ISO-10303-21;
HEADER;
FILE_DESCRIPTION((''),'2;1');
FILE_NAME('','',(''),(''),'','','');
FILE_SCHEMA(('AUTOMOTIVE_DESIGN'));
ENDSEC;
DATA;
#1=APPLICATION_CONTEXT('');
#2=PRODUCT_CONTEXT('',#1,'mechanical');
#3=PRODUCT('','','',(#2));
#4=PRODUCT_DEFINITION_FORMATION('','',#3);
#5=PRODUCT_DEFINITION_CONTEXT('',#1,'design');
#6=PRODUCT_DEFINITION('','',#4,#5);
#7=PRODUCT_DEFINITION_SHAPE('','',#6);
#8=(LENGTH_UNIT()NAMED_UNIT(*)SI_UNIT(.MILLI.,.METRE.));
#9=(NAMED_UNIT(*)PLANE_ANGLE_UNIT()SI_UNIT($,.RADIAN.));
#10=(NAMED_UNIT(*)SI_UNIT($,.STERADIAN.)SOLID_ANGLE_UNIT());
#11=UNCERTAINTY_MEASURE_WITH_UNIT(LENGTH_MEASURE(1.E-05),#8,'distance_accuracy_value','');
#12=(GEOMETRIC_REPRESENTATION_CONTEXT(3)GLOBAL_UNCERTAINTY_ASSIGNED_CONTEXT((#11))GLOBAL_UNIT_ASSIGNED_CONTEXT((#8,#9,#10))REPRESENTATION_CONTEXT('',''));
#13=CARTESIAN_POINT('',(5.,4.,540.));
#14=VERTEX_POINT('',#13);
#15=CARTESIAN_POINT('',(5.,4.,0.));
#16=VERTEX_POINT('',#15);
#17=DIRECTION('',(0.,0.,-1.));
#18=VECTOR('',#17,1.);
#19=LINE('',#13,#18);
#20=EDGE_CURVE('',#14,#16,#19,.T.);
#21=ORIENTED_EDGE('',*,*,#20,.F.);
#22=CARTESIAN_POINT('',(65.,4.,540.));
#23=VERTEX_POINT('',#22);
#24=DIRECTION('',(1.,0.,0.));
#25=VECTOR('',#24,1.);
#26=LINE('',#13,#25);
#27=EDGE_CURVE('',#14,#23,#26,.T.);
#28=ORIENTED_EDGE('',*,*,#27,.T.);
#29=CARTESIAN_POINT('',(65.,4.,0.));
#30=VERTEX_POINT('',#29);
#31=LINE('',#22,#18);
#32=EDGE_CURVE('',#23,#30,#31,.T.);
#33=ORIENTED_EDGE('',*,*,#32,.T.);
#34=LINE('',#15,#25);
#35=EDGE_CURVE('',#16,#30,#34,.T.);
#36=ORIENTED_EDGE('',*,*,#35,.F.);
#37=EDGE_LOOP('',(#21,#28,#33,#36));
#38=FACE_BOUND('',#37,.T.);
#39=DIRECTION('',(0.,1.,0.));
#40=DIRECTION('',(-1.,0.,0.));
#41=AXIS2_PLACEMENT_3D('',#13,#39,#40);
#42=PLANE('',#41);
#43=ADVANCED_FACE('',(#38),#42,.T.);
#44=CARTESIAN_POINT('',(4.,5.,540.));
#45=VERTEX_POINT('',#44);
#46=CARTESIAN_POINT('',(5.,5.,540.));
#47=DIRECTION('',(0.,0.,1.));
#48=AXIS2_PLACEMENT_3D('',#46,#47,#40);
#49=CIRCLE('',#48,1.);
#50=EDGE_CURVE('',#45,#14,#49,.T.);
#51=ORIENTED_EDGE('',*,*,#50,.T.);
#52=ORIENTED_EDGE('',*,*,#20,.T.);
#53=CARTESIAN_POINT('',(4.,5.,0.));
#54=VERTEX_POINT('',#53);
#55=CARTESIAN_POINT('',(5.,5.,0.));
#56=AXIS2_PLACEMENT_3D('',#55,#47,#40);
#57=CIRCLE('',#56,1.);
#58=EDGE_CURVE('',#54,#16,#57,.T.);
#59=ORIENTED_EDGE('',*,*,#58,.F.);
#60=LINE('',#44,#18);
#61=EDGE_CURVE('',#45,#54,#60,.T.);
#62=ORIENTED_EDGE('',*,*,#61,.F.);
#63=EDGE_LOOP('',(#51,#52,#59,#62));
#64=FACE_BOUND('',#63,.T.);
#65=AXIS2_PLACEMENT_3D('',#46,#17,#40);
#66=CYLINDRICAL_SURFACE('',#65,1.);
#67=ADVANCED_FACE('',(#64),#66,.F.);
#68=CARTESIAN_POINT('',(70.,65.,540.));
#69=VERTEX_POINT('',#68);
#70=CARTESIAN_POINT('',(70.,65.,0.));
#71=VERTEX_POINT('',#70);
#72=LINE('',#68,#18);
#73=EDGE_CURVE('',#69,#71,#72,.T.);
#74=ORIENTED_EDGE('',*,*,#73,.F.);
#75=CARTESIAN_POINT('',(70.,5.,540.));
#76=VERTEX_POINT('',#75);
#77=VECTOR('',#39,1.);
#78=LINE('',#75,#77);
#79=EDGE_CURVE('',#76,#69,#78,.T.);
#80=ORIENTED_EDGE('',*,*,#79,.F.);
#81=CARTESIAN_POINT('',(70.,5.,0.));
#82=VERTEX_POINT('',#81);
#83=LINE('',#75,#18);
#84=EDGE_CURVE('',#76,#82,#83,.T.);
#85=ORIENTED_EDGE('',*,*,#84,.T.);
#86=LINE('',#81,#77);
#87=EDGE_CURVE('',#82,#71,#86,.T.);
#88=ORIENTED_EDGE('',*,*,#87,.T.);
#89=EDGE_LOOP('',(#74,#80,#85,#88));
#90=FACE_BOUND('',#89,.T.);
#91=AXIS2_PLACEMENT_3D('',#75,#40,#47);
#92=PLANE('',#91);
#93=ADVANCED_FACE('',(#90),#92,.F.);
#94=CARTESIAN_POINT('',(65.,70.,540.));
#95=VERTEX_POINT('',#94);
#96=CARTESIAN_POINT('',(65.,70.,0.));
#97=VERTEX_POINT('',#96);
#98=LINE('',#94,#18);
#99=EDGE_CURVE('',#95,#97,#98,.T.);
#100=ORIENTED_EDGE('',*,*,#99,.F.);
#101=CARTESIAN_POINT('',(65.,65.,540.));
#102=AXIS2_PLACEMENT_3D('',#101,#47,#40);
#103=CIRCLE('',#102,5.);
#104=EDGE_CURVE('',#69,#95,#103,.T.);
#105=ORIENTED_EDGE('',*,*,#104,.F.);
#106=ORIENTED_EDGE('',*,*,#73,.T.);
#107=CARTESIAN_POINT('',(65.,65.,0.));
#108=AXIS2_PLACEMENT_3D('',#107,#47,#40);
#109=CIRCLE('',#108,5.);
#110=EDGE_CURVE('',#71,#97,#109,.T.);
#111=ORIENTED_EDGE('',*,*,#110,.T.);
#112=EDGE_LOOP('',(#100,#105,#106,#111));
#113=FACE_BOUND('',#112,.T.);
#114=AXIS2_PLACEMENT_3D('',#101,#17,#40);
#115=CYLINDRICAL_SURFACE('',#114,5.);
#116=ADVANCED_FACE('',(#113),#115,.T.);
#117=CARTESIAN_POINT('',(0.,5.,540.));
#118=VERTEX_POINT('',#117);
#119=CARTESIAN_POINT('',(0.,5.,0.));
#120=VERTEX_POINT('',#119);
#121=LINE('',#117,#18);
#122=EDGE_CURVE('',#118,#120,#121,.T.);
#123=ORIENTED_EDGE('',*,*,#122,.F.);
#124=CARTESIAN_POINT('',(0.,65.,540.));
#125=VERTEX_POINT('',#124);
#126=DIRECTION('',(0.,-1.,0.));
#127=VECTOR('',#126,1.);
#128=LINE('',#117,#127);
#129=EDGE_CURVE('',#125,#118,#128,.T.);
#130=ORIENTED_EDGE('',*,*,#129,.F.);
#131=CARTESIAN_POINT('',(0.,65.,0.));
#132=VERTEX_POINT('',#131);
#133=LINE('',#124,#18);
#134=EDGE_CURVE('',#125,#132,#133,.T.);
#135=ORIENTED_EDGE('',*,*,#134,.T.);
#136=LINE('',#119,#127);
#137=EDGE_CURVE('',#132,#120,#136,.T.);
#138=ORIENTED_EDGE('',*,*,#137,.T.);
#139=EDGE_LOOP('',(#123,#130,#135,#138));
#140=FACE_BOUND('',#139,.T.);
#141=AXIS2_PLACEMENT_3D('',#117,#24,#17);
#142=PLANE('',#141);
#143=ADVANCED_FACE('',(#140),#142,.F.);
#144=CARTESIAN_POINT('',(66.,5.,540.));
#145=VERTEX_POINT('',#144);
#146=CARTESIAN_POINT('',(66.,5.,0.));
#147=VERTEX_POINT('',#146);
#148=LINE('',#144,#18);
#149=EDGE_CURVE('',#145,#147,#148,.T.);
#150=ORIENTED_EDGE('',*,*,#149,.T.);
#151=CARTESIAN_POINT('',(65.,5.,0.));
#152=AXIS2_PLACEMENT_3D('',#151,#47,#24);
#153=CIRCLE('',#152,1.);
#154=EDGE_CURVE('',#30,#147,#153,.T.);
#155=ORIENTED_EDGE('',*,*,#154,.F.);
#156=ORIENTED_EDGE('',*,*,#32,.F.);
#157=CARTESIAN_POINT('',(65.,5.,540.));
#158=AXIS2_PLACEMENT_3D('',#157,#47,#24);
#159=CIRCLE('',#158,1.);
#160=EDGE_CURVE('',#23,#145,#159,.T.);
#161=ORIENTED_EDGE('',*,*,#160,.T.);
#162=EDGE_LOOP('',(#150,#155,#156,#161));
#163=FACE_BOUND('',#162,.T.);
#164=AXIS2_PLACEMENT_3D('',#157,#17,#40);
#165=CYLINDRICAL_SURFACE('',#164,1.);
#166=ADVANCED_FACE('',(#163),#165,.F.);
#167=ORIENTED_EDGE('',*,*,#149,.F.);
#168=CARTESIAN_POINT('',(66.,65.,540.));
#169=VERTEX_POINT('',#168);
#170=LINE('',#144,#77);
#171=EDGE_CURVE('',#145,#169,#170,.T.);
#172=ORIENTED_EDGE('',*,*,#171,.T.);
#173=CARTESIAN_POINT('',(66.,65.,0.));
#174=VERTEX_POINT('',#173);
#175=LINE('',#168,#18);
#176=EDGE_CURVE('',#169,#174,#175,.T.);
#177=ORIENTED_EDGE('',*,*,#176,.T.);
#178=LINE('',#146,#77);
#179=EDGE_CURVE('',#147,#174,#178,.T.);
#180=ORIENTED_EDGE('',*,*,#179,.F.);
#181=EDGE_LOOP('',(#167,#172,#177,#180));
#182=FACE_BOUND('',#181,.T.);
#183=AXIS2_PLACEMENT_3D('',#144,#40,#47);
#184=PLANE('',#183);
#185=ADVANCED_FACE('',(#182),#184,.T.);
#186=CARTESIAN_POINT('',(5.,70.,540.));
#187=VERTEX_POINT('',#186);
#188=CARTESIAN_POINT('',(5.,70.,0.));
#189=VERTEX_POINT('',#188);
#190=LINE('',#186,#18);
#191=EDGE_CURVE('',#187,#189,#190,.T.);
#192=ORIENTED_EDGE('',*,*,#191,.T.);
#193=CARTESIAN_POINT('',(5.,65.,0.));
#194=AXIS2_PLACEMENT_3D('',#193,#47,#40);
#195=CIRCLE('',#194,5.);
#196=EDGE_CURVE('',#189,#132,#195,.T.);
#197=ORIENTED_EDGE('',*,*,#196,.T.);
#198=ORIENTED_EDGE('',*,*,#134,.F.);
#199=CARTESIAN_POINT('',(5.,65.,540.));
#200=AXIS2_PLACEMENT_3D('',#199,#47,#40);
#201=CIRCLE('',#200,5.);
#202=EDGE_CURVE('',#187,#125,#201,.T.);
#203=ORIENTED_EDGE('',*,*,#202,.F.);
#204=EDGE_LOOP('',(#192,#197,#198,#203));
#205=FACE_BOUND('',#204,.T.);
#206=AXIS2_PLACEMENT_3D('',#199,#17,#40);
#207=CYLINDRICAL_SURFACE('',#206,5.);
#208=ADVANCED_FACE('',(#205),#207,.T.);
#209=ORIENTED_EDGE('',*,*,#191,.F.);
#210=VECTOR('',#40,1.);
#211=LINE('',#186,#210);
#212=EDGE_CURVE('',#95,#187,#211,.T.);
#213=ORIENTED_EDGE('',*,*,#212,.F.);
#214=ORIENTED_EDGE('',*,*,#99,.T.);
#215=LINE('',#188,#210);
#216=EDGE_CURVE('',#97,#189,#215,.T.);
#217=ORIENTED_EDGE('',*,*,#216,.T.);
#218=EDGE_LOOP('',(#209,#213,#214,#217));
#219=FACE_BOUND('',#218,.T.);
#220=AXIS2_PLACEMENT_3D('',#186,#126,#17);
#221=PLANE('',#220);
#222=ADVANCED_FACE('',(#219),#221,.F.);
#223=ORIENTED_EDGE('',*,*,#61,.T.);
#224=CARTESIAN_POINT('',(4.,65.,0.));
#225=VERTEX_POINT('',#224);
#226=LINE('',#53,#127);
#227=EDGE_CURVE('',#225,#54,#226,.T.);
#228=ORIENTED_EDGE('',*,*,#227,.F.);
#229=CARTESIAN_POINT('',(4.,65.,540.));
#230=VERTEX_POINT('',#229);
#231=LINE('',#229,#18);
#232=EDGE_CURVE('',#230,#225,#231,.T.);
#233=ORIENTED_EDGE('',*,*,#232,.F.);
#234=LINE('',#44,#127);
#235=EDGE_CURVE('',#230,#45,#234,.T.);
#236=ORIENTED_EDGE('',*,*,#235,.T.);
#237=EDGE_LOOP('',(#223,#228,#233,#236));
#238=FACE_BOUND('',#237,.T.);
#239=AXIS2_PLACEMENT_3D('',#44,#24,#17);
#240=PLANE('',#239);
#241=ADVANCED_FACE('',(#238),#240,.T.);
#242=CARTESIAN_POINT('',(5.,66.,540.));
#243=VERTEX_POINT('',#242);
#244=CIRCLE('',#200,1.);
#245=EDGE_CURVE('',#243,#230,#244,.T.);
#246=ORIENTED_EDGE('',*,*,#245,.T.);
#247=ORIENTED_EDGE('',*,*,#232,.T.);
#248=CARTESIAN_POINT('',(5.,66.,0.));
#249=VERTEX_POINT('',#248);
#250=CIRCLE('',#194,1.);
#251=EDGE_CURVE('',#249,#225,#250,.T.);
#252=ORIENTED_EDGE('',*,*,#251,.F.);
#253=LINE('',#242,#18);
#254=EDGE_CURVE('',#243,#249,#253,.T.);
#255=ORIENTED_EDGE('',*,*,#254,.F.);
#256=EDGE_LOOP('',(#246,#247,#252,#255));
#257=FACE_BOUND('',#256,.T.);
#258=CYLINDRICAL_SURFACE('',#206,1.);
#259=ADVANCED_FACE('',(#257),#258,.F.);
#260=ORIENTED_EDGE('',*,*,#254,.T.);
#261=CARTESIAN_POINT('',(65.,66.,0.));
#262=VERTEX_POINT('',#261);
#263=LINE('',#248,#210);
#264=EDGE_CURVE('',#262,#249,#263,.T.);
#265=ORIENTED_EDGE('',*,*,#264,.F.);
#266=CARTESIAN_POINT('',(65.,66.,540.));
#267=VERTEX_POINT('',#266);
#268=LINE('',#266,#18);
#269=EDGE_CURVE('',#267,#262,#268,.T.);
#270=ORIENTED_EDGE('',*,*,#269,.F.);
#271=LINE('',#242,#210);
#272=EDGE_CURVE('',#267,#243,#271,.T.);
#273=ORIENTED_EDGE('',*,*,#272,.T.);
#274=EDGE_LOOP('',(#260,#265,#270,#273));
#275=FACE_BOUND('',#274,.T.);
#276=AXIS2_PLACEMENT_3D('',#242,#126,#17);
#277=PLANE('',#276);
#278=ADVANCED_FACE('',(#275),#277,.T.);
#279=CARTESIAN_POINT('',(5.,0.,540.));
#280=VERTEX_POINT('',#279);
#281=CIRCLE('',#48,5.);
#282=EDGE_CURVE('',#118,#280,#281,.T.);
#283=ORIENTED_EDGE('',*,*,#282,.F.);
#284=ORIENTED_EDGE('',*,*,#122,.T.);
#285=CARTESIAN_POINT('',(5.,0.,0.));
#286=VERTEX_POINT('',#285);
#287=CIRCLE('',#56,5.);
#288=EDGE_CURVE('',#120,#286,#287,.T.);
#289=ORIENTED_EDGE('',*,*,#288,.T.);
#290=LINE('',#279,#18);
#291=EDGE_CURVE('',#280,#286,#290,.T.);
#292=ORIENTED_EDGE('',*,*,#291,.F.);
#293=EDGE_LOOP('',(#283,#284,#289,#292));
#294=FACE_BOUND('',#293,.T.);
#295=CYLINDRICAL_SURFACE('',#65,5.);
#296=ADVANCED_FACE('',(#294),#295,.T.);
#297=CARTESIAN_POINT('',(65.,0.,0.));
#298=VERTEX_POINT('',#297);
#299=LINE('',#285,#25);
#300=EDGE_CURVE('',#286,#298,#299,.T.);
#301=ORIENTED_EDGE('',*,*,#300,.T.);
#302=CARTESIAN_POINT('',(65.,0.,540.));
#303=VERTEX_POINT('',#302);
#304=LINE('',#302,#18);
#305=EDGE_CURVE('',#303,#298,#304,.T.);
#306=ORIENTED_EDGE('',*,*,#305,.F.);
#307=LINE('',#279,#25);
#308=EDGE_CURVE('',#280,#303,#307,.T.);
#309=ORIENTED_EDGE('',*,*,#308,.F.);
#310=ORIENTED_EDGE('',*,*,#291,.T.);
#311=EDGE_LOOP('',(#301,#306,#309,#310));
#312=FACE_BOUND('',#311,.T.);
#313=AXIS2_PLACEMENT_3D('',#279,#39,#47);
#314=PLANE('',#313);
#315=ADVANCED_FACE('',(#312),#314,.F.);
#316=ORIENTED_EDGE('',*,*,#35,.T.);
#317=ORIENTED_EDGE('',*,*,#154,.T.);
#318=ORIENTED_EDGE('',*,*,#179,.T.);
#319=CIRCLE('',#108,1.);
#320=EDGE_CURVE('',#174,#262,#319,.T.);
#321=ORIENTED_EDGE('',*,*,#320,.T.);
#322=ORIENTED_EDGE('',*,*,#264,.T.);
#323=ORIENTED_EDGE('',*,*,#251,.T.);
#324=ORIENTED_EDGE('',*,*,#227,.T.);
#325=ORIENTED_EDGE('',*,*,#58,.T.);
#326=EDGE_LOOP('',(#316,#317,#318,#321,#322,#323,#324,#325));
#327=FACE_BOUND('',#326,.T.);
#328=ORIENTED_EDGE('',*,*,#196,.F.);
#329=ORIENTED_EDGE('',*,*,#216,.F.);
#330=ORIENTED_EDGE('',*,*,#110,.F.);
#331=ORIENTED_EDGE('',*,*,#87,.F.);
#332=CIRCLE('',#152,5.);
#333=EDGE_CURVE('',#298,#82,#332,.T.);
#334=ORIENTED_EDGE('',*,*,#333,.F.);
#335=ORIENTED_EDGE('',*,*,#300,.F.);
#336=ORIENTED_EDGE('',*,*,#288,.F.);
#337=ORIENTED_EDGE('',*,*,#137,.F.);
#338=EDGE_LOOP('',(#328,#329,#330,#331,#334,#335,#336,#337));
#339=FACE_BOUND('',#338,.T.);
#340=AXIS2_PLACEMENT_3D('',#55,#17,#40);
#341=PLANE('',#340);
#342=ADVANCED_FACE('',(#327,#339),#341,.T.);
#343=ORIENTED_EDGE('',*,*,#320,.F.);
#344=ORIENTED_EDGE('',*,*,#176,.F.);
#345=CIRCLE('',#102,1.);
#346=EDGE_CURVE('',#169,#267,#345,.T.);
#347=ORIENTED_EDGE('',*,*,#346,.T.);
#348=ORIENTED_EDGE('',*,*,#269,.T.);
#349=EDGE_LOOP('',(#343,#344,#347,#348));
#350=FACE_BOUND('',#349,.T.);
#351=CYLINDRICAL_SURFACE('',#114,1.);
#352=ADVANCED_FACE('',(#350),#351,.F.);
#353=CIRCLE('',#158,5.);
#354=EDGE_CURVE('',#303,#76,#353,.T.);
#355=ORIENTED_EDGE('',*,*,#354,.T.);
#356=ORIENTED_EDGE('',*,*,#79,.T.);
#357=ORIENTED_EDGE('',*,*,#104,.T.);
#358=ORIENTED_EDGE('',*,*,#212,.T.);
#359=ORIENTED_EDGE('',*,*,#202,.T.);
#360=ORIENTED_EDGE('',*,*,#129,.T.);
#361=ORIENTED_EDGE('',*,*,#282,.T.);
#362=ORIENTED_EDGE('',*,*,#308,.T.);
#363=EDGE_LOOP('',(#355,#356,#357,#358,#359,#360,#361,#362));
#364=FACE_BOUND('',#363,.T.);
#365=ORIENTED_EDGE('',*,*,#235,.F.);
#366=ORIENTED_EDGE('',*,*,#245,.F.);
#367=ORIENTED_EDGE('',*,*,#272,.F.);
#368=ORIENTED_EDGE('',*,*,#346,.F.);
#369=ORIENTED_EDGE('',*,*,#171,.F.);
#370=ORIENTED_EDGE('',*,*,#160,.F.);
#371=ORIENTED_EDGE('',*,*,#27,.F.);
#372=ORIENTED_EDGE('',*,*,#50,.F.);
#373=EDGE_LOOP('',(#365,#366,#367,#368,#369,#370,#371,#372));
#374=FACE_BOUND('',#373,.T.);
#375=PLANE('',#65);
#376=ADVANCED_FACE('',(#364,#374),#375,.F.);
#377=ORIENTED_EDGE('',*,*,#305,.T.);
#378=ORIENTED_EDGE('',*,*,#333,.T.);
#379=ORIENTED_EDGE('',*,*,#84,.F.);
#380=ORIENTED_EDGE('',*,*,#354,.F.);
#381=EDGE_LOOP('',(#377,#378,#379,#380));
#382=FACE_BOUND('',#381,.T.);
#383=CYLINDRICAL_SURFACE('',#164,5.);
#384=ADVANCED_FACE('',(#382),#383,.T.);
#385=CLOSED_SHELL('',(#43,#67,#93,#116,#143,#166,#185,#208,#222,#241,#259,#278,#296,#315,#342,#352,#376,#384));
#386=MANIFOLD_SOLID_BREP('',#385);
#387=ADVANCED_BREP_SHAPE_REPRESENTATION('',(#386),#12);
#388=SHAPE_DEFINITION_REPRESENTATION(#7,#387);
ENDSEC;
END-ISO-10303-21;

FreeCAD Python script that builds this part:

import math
import FreeCAD as App
import Part
import Sketcher

V = App.Vector

doc = App.newDocument("Part")
params = doc.addObject("Spreadsheet::Sheet", "Params")
for row, (alias, value) in enumerate([
    ("sketch1_radius", "5 mm"),
    ("sketch1_radius2", "1 mm"),
    ("sketch1_width", "60 mm"),
    ("pad1_length", "540 mm"),
], start=1):
    params.set(f"A{row}", alias)
    params.set(f"B{row}", "=" + value)
    params.setAlias(f"B{row}", alias)

body = doc.addObject("PartDesign::Body", "Body")

sketch1 = body.newObject("Sketcher::SketchObject", "Sketch")
sketch1.AttachmentSupport = (doc.getObject("XY_Plane"), [""])
sketch1.MapMode = "FlatFace"
sketch1.addGeometry(Part.LineSegment(V(5, 0, 0), V(65, 0, 0)), False)
sketch1.addGeometry(Part.ArcOfCircle(Part.Circle(V(65, 5, 0), V(0, 0, 1), 5), math.radians(-90), math.radians(0)), False)
sketch1.addGeometry(Part.LineSegment(V(70, 5, 0), V(70, 65, 0)), False)
sketch1.addGeometry(Part.ArcOfCircle(Part.Circle(V(65, 65, 0), V(0, 0, 1), 5), math.radians(0), math.radians(90)), False)
sketch1.addGeometry(Part.LineSegment(V(65, 70, 0), V(5, 70, 0)), False)
sketch1.addGeometry(Part.ArcOfCircle(Part.Circle(V(5, 65, 0), V(0, 0, 1), 5), math.radians(90), math.radians(180)), False)
sketch1.addGeometry(Part.LineSegment(V(0, 65, 0), V(0, 5, 0)), False)
sketch1.addGeometry(Part.ArcOfCircle(Part.Circle(V(5, 5, 0), V(0, 0, 1), 5), math.radians(180), math.radians(270)), False)
sketch1.addGeometry(Part.ArcOfCircle(Part.Circle(V(5, 5, 0), V(0, 0, 1), 1), math.radians(-180), math.radians(-90)), False)
sketch1.addGeometry(Part.LineSegment(V(4, 5, 0), V(4, 65, 0)), False)
sketch1.addGeometry(Part.ArcOfCircle(Part.Circle(V(5, 65, 0), V(0, 0, 1), 1), math.radians(90), math.radians(180)), False)
sketch1.addGeometry(Part.LineSegment(V(5, 66, 0), V(65, 66, 0)), False)
sketch1.addGeometry(Part.ArcOfCircle(Part.Circle(V(65, 65, 0), V(0, 0, 1), 1), math.radians(0), math.radians(90)), False)
sketch1.addGeometry(Part.LineSegment(V(66, 65, 0), V(66, 5, 0)), False)
sketch1.addGeometry(Part.ArcOfCircle(Part.Circle(V(65, 5, 0), V(0, 0, 1), 1), math.radians(-90), math.radians(0)), False)
sketch1.addGeometry(Part.LineSegment(V(65, 4, 0), V(5, 4, 0)), False)
sketch1.addConstraint(Sketcher.Constraint("Tangent", 0, 2, 1, 1))
sketch1.addConstraint(Sketcher.Constraint("Tangent", 1, 2, 2, 1))
sketch1.addConstraint(Sketcher.Constraint("Tangent", 2, 2, 3, 1))
sketch1.addConstraint(Sketcher.Constraint("Tangent", 3, 2, 4, 1))
sketch1.addConstraint(Sketcher.Constraint("Tangent", 4, 2, 5, 1))
sketch1.addConstraint(Sketcher.Constraint("Tangent", 5, 2, 6, 1))
sketch1.addConstraint(Sketcher.Constraint("Tangent", 6, 2, 7, 1))
sketch1.addConstraint(Sketcher.Constraint("Tangent", 7, 2, 0, 1))
sketch1.addConstraint(Sketcher.Constraint("Tangent", 8, 1, 9, 1))
sketch1.addConstraint(Sketcher.Constraint("Tangent", 9, 2, 10, 2))
sketch1.addConstraint(Sketcher.Constraint("Tangent", 10, 1, 11, 1))
sketch1.addConstraint(Sketcher.Constraint("Tangent", 11, 2, 12, 2))
sketch1.addConstraint(Sketcher.Constraint("Tangent", 12, 1, 13, 1))
sketch1.addConstraint(Sketcher.Constraint("Tangent", 13, 2, 14, 2))
sketch1.addConstraint(Sketcher.Constraint("Tangent", 14, 1, 15, 1))
sketch1.addConstraint(Sketcher.Constraint("Tangent", 15, 2, 8, 2))
sketch1.addConstraint(Sketcher.Constraint("Horizontal", 0))
sketch1.addConstraint(Sketcher.Constraint("Vertical", 2))
sketch1.addConstraint(Sketcher.Constraint("Horizontal", 4))
sketch1.addConstraint(Sketcher.Constraint("Vertical", 6))
sketch1.addConstraint(Sketcher.Constraint("Vertical", 9))
sketch1.addConstraint(Sketcher.Constraint("Horizontal", 11))
sketch1.addConstraint(Sketcher.Constraint("Vertical", 13))
sketch1.addConstraint(Sketcher.Constraint("Horizontal", 15))
sketch1.addConstraint(Sketcher.Constraint("Coincident", 8, 3, 7, 3))
sketch1.addConstraint(Sketcher.Constraint("Coincident", 10, 3, 5, 3))
sketch1.addConstraint(Sketcher.Constraint("Coincident", 12, 3, 3, 3))
sketch1.addConstraint(Sketcher.Constraint("Equal", 1, 3))
sketch1.addConstraint(Sketcher.Constraint("Equal", 3, 5))
sketch1.addConstraint(Sketcher.Constraint("Equal", 5, 7))
sketch1.addConstraint(Sketcher.Constraint("Equal", 12, 14))
sketch1.addConstraint(Sketcher.Constraint("PointOnObject", 0, 2, -1))
sketch1.addConstraint(Sketcher.Constraint("PointOnObject", 5, 2, -2))
sketch1.addConstraint(Sketcher.Constraint("Equal", 15, 2))
sketch1.addConstraint(Sketcher.Constraint("Radius", 1, 5.0))
sketch1.addConstraint(Sketcher.Constraint("Radius", 8, 1.0))
sketch1.addConstraint(Sketcher.Constraint("DistanceX", 0, 1, 0, 2, 60.0))
sketch1.setExpression("Constraints[34]", "Params.sketch1_radius")
sketch1.setExpression("Constraints[35]", "Params.sketch1_radius2")
sketch1.setExpression("Constraints[36]", "Params.sketch1_width")
pad1 = body.newObject("PartDesign::Pad", "Pad")
pad1.Profile = sketch1
pad1.setExpression("Length", "Params.pad1_length")

doc.recompute()
